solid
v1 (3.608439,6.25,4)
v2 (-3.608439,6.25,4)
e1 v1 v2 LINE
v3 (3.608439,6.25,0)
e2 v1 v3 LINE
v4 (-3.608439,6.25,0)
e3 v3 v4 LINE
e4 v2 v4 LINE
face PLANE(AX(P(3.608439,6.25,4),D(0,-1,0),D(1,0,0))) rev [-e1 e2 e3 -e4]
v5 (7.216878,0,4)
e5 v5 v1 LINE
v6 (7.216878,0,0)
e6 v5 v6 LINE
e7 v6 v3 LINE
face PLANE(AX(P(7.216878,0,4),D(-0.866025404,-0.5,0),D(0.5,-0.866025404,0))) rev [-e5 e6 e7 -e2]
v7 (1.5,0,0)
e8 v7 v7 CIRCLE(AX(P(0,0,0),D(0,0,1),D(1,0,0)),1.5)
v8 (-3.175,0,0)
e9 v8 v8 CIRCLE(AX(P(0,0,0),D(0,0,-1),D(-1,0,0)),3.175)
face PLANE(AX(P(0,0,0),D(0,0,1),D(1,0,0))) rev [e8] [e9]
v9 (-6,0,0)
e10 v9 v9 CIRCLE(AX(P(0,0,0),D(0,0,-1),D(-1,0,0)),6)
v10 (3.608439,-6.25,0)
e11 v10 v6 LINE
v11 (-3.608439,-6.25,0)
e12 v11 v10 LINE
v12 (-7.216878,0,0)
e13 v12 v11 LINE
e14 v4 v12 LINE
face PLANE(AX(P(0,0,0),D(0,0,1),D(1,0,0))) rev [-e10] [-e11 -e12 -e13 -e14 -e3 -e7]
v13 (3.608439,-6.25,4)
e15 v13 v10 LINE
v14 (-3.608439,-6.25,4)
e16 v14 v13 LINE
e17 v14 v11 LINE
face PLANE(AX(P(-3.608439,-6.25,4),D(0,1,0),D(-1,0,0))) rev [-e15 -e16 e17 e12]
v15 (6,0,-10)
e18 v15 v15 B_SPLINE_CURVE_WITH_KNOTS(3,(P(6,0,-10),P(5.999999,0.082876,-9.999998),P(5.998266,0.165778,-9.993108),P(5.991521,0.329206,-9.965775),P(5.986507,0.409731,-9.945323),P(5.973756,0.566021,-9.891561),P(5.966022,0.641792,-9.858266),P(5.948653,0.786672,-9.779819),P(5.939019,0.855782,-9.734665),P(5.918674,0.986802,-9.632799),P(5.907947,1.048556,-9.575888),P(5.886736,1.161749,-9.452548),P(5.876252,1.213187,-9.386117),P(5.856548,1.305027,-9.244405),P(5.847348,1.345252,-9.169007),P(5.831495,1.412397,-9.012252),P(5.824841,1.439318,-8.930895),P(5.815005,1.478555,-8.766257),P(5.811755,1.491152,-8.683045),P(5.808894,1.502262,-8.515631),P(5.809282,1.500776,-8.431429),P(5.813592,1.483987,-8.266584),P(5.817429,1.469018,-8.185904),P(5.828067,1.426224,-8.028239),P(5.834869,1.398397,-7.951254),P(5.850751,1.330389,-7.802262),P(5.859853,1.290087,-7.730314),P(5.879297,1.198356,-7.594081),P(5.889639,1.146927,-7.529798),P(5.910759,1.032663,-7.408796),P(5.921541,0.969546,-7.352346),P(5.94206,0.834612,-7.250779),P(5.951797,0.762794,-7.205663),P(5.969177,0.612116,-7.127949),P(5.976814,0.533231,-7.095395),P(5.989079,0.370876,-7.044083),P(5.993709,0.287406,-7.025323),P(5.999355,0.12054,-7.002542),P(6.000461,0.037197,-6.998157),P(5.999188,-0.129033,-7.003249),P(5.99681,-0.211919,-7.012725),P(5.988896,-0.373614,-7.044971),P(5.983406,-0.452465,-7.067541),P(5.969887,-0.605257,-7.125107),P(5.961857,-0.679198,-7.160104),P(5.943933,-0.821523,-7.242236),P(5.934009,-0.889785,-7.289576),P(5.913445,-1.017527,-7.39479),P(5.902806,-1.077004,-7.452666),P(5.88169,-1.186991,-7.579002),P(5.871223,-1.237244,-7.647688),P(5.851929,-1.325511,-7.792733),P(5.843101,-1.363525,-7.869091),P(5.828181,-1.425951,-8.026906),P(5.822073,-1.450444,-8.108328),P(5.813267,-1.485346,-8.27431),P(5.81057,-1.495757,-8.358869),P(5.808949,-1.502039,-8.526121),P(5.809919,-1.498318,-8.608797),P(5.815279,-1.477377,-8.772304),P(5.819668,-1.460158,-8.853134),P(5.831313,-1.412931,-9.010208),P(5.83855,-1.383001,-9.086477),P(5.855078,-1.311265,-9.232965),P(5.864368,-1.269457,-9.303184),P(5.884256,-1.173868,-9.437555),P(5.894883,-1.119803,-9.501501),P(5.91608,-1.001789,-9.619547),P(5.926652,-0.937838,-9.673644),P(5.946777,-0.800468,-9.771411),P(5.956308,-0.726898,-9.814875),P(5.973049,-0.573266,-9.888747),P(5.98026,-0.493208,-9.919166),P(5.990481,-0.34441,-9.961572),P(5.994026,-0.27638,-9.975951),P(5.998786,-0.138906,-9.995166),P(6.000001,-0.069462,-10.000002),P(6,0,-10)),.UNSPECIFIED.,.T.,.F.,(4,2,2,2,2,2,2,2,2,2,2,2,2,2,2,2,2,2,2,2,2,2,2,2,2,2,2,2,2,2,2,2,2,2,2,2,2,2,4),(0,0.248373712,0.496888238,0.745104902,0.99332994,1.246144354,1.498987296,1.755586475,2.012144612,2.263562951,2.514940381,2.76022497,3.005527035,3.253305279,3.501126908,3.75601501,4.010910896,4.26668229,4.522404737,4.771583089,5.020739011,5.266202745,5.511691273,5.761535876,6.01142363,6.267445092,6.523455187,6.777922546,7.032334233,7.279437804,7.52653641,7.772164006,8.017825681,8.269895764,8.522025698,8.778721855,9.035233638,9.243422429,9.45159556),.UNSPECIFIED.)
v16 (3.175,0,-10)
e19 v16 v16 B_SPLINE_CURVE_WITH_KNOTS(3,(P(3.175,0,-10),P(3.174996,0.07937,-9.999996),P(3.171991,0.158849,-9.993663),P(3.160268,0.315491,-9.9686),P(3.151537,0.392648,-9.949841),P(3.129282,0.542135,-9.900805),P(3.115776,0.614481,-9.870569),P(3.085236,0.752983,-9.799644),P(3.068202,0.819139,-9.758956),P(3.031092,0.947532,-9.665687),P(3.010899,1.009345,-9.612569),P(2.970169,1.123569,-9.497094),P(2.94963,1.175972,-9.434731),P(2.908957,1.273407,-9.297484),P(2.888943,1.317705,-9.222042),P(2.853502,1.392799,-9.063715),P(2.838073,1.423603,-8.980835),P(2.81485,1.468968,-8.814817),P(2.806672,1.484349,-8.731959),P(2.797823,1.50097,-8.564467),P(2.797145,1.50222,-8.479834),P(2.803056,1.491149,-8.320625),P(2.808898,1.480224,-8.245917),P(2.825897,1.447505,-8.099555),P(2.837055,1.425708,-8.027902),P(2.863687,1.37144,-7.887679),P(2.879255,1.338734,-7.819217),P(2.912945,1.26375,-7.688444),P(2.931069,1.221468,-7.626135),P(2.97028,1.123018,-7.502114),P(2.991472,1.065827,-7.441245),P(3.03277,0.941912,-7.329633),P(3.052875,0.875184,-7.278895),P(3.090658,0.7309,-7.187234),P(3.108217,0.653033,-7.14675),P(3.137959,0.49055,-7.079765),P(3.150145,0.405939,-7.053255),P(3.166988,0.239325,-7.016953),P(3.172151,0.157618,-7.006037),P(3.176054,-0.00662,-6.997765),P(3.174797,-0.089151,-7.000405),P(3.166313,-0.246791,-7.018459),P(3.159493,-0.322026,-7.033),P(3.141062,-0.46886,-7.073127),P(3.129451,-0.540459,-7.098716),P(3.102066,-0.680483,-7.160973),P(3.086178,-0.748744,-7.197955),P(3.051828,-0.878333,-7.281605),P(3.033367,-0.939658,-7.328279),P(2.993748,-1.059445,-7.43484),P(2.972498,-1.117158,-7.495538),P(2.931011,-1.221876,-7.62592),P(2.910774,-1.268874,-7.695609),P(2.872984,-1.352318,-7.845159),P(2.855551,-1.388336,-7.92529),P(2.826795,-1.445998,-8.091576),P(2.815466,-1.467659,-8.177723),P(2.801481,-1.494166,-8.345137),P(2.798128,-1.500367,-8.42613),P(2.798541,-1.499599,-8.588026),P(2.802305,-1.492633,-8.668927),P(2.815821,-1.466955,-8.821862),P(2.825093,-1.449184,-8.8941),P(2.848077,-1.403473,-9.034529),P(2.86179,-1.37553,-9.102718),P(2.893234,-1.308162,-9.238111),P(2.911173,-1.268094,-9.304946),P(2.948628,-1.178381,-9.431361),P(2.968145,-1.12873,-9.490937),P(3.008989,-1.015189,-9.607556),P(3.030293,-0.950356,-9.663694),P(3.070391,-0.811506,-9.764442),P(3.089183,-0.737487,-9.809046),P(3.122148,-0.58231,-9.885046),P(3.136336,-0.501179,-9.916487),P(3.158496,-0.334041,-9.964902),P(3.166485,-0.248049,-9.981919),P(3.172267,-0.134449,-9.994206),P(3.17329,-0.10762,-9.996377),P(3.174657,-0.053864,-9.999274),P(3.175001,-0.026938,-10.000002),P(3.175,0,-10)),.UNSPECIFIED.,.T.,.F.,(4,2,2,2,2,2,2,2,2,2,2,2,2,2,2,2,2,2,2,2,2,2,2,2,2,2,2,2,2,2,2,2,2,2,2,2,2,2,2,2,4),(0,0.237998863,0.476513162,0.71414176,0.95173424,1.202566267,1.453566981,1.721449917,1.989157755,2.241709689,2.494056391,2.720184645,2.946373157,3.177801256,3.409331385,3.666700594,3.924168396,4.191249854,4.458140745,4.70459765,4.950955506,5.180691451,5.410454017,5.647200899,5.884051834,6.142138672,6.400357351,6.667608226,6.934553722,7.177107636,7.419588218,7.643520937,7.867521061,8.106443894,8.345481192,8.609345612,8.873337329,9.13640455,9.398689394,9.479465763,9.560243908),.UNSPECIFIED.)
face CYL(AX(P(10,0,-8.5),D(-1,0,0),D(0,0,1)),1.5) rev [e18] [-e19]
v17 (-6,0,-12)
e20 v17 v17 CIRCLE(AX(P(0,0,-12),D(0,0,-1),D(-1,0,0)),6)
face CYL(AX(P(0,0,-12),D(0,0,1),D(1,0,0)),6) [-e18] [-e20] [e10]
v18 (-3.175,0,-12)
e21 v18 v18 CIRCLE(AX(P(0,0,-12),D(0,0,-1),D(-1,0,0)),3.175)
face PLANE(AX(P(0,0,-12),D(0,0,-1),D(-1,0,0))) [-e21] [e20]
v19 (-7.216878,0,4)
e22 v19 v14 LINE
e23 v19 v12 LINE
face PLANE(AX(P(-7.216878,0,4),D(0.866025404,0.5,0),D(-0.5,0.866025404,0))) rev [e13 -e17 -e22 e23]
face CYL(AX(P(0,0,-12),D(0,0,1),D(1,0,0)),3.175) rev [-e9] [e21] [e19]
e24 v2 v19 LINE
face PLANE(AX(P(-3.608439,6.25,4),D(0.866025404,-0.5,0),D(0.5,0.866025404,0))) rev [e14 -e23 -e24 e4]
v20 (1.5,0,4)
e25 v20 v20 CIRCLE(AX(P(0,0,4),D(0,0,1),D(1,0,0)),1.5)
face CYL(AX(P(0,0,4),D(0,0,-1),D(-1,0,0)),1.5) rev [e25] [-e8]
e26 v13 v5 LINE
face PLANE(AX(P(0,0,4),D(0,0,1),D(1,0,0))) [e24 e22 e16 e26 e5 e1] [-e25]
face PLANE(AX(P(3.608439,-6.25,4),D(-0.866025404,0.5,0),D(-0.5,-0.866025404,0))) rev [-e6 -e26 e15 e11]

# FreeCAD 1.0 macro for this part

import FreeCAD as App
import Part
import Sketcher
from FreeCAD import Vector
Q = App.Units.Quantity

doc = App.newDocument("Part")
body = doc.addObject("PartDesign::Body", "Body")

# Sketch on XY plane
sketch1 = body.newObject("Sketcher::SketchObject", "Sketch")
sketch1.AttachmentSupport = (doc.getObject("XY_Plane"), [""])
sketch1.MapMode = "FlatFace"
sketch1.addGeometry(Part.LineSegment(Vector(3.6, 6.2, 0), Vector(-3.6, 6.2, 0)), False)
sketch1.addGeometry(Part.LineSegment(Vector(-3.6, 6.2, 0), Vector(-7.2, 0, 0)), False)
sketch1.addGeometry(Part.LineSegment(Vector(-7.2, 0, 0), Vector(-3.6, -6.2, 0)), False)
sketch1.addGeometry(Part.LineSegment(Vector(-3.6, -6.2, 0), Vector(3.6, -6.2, 0)), False)
sketch1.addGeometry(Part.LineSegment(Vector(3.6, -6.2, 0), Vector(7.2, 0, 0)), False)
sketch1.addGeometry(Part.LineSegment(Vector(7.2, 0, 0), Vector(3.6, 6.2, 0)), False)
sketch1.addGeometry(Part.Circle(Vector(0, 0, 0), Vector(0, 0, 1), 1.5), False)
sketch1.addConstraint(Sketcher.Constraint("Coincident", 0, 2, 1, 1))
sketch1.addConstraint(Sketcher.Constraint("Coincident", 1, 2, 2, 1))
sketch1.addConstraint(Sketcher.Constraint("Coincident", 2, 2, 3, 1))
sketch1.addConstraint(Sketcher.Constraint("Coincident", 3, 2, 4, 1))
sketch1.addConstraint(Sketcher.Constraint("Coincident", 4, 2, 5, 1))
sketch1.addConstraint(Sketcher.Constraint("Coincident", 5, 2, 0, 1))
sketch1.addConstraint(Sketcher.Constraint("Horizontal", 0))
sketch1.addConstraint(Sketcher.Constraint("Horizontal", 3))
sketch1.addConstraint(Sketcher.Constraint("Coincident", 6, 3, -1, 1))
sketch1.addConstraint(Sketcher.Constraint("Symmetric", 0, 2, 3, 2, -1, 1))
sketch1.addConstraint(Sketcher.Constraint("Symmetric", 1, 2, 4, 2, -1, 1))
sketch1.addConstraint(Sketcher.Constraint("PointOnObject", 1, 2, -1))
sketch1.addConstraint(Sketcher.Constraint("Parallel", 2, 5))
sketch1.addConstraint(Sketcher.Constraint("Vertical", 0, 2, 2, 2))
sketch1.addConstraint(Sketcher.Constraint("Diameter", 6, 3.0))
sketch1.addConstraint(Sketcher.Constraint("Angle", 1, Q("-120 deg")))
sketch1.addConstraint(Sketcher.Constraint("DistanceY", 2, 2, 0, 2, 12.5))
sketch1.addConstraint(Sketcher.Constraint("DistanceX", 0, 2, 0, 1, 7.216878))
pad1 = body.newObject("PartDesign::Pad", "Pad")
pad1.Profile = sketch1
pad1.Length = 4

# Sketch on XY plane
sketch2 = body.newObject("Sketcher::SketchObject", "Sketch001")
sketch2.AttachmentSupport = (doc.getObject("XY_Plane"), [""])
sketch2.MapMode = "FlatFace"
sketch2.addGeometry(Part.Circle(Vector(0, 0, 0), Vector(0, 0, 1), 6), False)
sketch2.addGeometry(Part.Circle(Vector(0, 0, 0), Vector(0, 0, 1), 3.2), False)
sketch2.addConstraint(Sketcher.Constraint("Coincident", 0, 3, -1, 1))
sketch2.addConstraint(Sketcher.Constraint("Coincident", 1, 3, -1, 1))
sketch2.addConstraint(Sketcher.Constraint("Diameter", 0, 12.0))
sketch2.addConstraint(Sketcher.Constraint("Diameter", 1, 6.35))
pad2 = body.newObject("PartDesign::Pad", "Pad001")
pad2.Profile = sketch2
pad2.Length = 12
pad2.Reversed = True

# Sketch on YZ plane
sketch3 = body.newObject("Sketcher::SketchObject", "Sketch002")
sketch3.AttachmentSupport = (doc.getObject("YZ_Plane"), [""])
sketch3.MapMode = "FlatFace"
sketch3.addGeometry(Part.Circle(Vector(0, -8.5, 0), Vector(0, 0, 1), 1.5), False)
sketch3.addConstraint(Sketcher.Constraint("PointOnObject", 0, 3, -2))
sketch3.addConstraint(Sketcher.Constraint("Diameter", 0, 3.0))
sketch3.addConstraint(Sketcher.Constraint("DistanceY", 0, 3, -1, 1, 8.5))
pocket1 = body.newObject("PartDesign::Pocket", "Pocket")
pocket1.Profile = sketch3
pocket1.Length = 10
pocket1.Reversed = True

doc.recompute()
